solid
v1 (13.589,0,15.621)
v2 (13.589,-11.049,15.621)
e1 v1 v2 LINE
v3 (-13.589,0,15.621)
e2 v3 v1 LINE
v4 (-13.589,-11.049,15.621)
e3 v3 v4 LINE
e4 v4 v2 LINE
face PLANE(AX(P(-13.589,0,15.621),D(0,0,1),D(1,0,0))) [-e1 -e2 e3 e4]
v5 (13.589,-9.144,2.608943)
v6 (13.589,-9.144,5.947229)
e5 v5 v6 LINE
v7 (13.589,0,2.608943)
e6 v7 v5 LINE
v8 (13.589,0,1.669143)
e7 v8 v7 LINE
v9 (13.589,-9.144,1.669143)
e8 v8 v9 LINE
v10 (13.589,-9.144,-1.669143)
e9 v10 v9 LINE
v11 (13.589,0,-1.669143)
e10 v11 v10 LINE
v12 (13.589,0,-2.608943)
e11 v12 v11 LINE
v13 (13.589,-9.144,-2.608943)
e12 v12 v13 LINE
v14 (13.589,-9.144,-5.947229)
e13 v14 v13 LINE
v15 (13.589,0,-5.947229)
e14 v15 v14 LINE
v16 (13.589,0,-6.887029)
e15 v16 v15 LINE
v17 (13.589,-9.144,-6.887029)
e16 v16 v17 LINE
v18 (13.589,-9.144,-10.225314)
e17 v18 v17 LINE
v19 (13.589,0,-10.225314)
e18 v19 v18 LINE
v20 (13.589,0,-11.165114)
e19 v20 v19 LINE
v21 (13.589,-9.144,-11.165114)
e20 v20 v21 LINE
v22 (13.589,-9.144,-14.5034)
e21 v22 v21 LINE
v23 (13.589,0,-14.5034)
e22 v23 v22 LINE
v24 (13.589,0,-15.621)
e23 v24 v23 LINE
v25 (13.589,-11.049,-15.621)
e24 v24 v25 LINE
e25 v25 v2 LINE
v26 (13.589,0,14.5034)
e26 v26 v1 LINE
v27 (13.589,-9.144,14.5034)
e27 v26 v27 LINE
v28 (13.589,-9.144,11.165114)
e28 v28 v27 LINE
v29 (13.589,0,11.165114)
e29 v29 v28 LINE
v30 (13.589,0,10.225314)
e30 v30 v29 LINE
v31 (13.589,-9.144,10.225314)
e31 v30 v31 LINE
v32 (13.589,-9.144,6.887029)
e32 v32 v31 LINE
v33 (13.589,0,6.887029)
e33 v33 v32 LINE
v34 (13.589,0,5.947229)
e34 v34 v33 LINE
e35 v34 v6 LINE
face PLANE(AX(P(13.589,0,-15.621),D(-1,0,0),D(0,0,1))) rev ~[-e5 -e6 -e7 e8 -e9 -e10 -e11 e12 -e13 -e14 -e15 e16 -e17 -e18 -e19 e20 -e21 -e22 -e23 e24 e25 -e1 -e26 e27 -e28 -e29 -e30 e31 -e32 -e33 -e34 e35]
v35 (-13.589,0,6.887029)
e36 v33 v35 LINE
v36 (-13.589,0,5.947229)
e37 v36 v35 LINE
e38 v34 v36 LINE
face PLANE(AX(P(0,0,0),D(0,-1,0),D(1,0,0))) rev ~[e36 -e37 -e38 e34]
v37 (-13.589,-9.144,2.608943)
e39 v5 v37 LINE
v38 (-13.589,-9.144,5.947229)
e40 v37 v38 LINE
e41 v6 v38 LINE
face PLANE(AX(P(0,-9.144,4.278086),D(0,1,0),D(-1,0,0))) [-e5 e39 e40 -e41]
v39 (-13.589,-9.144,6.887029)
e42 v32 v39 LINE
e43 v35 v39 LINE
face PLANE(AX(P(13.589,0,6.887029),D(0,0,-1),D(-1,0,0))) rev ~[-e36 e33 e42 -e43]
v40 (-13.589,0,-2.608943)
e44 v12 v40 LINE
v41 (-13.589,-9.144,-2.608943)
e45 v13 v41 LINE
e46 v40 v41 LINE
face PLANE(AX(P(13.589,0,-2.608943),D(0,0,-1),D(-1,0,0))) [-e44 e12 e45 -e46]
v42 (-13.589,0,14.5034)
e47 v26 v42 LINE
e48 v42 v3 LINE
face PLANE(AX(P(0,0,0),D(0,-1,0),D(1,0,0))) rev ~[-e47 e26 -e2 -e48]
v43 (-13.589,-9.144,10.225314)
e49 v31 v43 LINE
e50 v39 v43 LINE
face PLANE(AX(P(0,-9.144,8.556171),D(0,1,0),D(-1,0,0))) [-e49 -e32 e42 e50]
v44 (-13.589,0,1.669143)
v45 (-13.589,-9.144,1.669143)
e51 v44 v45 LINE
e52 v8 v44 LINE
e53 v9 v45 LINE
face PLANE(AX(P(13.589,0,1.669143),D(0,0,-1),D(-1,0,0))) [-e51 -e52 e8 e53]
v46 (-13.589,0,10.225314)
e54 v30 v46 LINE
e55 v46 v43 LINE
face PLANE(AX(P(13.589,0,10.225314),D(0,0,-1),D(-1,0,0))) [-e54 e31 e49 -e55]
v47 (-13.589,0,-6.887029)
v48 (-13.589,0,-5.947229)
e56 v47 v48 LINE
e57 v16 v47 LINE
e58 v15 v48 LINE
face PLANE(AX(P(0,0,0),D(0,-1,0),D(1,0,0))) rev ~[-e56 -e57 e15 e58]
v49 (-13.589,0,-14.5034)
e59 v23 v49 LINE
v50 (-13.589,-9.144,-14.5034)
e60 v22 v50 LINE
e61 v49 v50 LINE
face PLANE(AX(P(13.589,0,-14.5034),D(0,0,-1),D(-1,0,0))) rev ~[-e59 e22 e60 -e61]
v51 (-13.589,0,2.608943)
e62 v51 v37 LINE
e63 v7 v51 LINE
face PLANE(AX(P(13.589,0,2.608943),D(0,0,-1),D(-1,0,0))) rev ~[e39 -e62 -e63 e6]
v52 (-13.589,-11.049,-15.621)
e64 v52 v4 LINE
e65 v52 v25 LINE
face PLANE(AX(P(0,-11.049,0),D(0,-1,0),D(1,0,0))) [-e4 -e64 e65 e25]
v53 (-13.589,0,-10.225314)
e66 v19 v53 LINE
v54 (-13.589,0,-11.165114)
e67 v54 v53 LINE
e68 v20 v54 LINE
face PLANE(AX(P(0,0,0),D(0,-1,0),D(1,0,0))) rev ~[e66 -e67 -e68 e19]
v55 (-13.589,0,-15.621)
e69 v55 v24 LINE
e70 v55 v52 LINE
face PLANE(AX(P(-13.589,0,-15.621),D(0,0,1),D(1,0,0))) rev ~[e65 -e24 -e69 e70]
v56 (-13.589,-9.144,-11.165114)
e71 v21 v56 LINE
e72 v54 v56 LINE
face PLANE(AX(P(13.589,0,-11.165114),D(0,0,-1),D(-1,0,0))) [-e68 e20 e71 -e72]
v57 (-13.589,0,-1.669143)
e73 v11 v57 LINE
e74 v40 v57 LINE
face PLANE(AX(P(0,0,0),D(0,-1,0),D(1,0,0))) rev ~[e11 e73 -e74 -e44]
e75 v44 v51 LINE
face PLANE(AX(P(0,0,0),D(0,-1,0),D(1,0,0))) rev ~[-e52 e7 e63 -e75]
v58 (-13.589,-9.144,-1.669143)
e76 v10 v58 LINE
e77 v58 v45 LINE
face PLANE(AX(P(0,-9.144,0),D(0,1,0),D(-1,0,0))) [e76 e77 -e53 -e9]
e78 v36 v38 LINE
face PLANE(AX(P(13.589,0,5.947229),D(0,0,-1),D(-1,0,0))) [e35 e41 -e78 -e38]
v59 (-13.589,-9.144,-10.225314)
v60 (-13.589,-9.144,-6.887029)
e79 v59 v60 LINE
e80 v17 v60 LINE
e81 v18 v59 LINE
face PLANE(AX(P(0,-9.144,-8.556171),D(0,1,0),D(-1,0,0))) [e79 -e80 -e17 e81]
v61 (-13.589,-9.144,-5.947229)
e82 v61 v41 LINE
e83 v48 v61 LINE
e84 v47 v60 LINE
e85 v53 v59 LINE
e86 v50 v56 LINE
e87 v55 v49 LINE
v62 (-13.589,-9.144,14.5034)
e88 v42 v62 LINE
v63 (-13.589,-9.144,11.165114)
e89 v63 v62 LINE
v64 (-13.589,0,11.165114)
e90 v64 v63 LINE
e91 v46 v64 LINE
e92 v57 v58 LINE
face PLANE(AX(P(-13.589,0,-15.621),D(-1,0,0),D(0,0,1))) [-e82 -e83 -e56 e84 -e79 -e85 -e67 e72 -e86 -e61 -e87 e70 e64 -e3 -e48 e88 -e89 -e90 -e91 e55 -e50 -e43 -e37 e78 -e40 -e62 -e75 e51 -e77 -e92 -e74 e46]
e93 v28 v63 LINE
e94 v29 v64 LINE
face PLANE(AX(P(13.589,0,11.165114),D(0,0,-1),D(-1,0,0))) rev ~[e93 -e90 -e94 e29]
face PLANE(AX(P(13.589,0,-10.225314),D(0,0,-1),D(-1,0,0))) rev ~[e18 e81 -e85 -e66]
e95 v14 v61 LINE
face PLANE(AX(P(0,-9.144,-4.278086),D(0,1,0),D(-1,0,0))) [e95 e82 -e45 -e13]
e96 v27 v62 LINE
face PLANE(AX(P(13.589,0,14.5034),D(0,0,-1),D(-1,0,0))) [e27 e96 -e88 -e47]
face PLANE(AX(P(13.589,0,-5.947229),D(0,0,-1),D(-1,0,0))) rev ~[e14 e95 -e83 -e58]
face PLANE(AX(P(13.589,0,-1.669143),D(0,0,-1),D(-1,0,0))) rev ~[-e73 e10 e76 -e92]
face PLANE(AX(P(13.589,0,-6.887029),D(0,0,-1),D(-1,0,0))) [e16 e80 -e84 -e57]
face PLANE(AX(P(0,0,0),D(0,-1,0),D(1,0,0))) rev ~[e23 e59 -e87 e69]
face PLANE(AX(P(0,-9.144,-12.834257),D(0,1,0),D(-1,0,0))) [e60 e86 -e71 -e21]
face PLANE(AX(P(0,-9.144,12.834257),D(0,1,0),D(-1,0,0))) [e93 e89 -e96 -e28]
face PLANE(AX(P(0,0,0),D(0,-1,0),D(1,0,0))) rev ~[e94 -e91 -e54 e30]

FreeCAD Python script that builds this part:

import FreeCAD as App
import Part
import Sketcher

V = App.Vector
Q = App.Units.Quantity


def add_polygon(sketch, points):
    """Adds a closed chain of lines whose ends are joined by coincident constraints."""
    first, n = sketch.GeometryCount, len(points)
    for a, b in zip(points, points[1:] + points[:1]):
        sketch.addGeometry(Part.LineSegment(App.Vector(*a, 0), App.Vector(*b, 0)), False)
    for i in range(n):
        sketch.addConstraint(Sketcher.Constraint("Coincident", first + i, 2, first + (i + 1) % n, 1))

doc = App.newDocument("Part")
body = doc.addObject("PartDesign::Body", "Body")

sketch1 = body.newObject("Sketcher::SketchObject", "Sketch")
sketch1.AttachmentSupport = (doc.getObject("XZ_Plane"), [""])
sketch1.MapMode = "FlatFace"
add_polygon(sketch1, [(-13.589, 15.621), (-13.589, -15.621), (13.589, -15.621), (13.589, 15.621)])
sketch1.addConstraint([
    Sketcher.Constraint("Vertical", 0),
    Sketcher.Constraint("Horizontal", 1),
    Sketcher.Constraint("Vertical", 2),
    Sketcher.Constraint("Horizontal", 3),
    Sketcher.Constraint("Symmetric", 0, 2, 2, 2, -1, 1),
    Sketcher.Constraint("DistanceX", 1, 1, 1, 2, Q("1.07 in")),
    Sketcher.Constraint("DistanceY", 0, 2, 0, 1, Q("1.23 in")),
])
pad1 = body.newObject("PartDesign::Pad", "Pad")
pad1.Profile = sketch1
pad1.Length = Q("0.435 in")

sketch2 = body.newObject("Sketcher::SketchObject", "Sketch001")
sketch2.AttachmentSupport = (doc.getObject("XZ_Plane"), [""])
sketch2.MapMode = "FlatFace"
add_polygon(sketch2, [(13.589, 14.5034), (13.589, 11.165114), (-13.589, 11.165114), (-13.589, 14.5034)])
add_polygon(sketch2, [(13.589, 10.225314), (13.589, 6.887029), (-13.589, 6.887029), (-13.589, 10.225314)])
add_polygon(sketch2, [(13.589, 5.947229), (13.589, 2.608943), (-13.589, 2.608943), (-13.589, 5.947229)])
add_polygon(sketch2, [(13.589, 1.669143), (13.589, -1.669143), (-13.589, -1.669143), (-13.589, 1.669143)])
add_polygon(sketch2, [(13.589, -2.608943), (13.589, -5.947229), (-13.589, -5.947229), (-13.589, -2.608943)])
add_polygon(sketch2, [(13.589, -6.887029), (13.589, -10.225314), (-13.589, -10.225314), (-13.589, -6.887029)])
add_polygon(sketch2, [(13.589, -11.165114), (13.589, -14.5034), (-13.589, -14.5034), (-13.589, -11.165114)])
sketch2.addConstraint([
    Sketcher.Constraint("Vertical", 0),
    Sketcher.Constraint("Horizontal", 1),
    Sketcher.Constraint("Vertical", 2),
    Sketcher.Constraint("Horizontal", 3),
    Sketcher.Constraint("Vertical", 4),
    Sketcher.Constraint("Horizontal", 5),
    Sketcher.Constraint("Vertical", 6),
    Sketcher.Constraint("Horizontal", 7),
    Sketcher.Constraint("Vertical", 8),
    Sketcher.Constraint("Horizontal", 9),
    Sketcher.Constraint("Vertical", 10),
    Sketcher.Constraint("Horizontal", 11),
    Sketcher.Constraint("Vertical", 12),
    Sketcher.Constraint("Horizontal", 13),
    Sketcher.Constraint("Vertical", 14),
    Sketcher.Constraint("Horizontal", 15),
    Sketcher.Constraint("Vertical", 16),
    Sketcher.Constraint("Horizontal", 17),
    Sketcher.Constraint("Vertical", 18),
    Sketcher.Constraint("Horizontal", 19),
    Sketcher.Constraint("Vertical", 20),
    Sketcher.Constraint("Horizontal", 21),
    Sketcher.Constraint("Vertical", 22),
    Sketcher.Constraint("Horizontal", 23),
    Sketcher.Constraint("Vertical", 24),
    Sketcher.Constraint("Horizontal", 25),
    Sketcher.Constraint("Vertical", 26),
    Sketcher.Constraint("Horizontal", 27),
    Sketcher.Constraint("Symmetric", 12, 2, 14, 2, -1, 1),
    Sketcher.Constraint("Symmetric", 10, 2, 16, 2, -1, 1),
    Sketcher.Constraint("Symmetric", 8, 2, 18, 2, -1, 1),
    Sketcher.Constraint("Symmetric", 6, 2, 20, 2, -1, 1),
    Sketcher.Constraint("Symmetric", 4, 2, 22, 2, -1, 1),
    Sketcher.Constraint("Symmetric", 2, 2, 24, 2, -1, 1),
    Sketcher.Constraint("Symmetric", 0, 2, 26, 2, -1, 1),
    Sketcher.Constraint("Vertical", 3, 2, 4, 2),
    Sketcher.Constraint("Vertical", 2, 2, 5, 2),
    Sketcher.Constraint("Vertical", 7, 2, 8, 2),
    Sketcher.Constraint("Vertical", 6, 2, 9, 2),
    Sketcher.Constraint("Vertical", 11, 2, 12, 2),
    Sketcher.Constraint("Vertical", 10, 2, 13, 2),
    Sketcher.Constraint("Equal", 2, 4),
    Sketcher.Constraint("Equal", 6, 8),
    Sketcher.Constraint("Equal", 10, 12),
    Sketcher.Constraint("DistanceX", 1, 2, 1, 1, Q("1.07 in")),
    Sketcher.Constraint("DistanceY", -1, 1, 2, 2, Q("0.571 in")),
    Sketcher.Constraint("DistanceY", 6, 2, 1, 2, Q("0.037 in")),
    Sketcher.Constraint("DistanceY", 10, 2, 5, 2, Q("0.037 in")),
    Sketcher.Constraint("DistanceY", 14, 2, 9, 2, Q("0.037 in")),
])
pocket1 = body.newObject("PartDesign::Pocket", "Pocket")
pocket1.Profile = sketch2
pocket1.Length = Q("0.36 in")
pocket1.Reversed = True

doc.recompute()
